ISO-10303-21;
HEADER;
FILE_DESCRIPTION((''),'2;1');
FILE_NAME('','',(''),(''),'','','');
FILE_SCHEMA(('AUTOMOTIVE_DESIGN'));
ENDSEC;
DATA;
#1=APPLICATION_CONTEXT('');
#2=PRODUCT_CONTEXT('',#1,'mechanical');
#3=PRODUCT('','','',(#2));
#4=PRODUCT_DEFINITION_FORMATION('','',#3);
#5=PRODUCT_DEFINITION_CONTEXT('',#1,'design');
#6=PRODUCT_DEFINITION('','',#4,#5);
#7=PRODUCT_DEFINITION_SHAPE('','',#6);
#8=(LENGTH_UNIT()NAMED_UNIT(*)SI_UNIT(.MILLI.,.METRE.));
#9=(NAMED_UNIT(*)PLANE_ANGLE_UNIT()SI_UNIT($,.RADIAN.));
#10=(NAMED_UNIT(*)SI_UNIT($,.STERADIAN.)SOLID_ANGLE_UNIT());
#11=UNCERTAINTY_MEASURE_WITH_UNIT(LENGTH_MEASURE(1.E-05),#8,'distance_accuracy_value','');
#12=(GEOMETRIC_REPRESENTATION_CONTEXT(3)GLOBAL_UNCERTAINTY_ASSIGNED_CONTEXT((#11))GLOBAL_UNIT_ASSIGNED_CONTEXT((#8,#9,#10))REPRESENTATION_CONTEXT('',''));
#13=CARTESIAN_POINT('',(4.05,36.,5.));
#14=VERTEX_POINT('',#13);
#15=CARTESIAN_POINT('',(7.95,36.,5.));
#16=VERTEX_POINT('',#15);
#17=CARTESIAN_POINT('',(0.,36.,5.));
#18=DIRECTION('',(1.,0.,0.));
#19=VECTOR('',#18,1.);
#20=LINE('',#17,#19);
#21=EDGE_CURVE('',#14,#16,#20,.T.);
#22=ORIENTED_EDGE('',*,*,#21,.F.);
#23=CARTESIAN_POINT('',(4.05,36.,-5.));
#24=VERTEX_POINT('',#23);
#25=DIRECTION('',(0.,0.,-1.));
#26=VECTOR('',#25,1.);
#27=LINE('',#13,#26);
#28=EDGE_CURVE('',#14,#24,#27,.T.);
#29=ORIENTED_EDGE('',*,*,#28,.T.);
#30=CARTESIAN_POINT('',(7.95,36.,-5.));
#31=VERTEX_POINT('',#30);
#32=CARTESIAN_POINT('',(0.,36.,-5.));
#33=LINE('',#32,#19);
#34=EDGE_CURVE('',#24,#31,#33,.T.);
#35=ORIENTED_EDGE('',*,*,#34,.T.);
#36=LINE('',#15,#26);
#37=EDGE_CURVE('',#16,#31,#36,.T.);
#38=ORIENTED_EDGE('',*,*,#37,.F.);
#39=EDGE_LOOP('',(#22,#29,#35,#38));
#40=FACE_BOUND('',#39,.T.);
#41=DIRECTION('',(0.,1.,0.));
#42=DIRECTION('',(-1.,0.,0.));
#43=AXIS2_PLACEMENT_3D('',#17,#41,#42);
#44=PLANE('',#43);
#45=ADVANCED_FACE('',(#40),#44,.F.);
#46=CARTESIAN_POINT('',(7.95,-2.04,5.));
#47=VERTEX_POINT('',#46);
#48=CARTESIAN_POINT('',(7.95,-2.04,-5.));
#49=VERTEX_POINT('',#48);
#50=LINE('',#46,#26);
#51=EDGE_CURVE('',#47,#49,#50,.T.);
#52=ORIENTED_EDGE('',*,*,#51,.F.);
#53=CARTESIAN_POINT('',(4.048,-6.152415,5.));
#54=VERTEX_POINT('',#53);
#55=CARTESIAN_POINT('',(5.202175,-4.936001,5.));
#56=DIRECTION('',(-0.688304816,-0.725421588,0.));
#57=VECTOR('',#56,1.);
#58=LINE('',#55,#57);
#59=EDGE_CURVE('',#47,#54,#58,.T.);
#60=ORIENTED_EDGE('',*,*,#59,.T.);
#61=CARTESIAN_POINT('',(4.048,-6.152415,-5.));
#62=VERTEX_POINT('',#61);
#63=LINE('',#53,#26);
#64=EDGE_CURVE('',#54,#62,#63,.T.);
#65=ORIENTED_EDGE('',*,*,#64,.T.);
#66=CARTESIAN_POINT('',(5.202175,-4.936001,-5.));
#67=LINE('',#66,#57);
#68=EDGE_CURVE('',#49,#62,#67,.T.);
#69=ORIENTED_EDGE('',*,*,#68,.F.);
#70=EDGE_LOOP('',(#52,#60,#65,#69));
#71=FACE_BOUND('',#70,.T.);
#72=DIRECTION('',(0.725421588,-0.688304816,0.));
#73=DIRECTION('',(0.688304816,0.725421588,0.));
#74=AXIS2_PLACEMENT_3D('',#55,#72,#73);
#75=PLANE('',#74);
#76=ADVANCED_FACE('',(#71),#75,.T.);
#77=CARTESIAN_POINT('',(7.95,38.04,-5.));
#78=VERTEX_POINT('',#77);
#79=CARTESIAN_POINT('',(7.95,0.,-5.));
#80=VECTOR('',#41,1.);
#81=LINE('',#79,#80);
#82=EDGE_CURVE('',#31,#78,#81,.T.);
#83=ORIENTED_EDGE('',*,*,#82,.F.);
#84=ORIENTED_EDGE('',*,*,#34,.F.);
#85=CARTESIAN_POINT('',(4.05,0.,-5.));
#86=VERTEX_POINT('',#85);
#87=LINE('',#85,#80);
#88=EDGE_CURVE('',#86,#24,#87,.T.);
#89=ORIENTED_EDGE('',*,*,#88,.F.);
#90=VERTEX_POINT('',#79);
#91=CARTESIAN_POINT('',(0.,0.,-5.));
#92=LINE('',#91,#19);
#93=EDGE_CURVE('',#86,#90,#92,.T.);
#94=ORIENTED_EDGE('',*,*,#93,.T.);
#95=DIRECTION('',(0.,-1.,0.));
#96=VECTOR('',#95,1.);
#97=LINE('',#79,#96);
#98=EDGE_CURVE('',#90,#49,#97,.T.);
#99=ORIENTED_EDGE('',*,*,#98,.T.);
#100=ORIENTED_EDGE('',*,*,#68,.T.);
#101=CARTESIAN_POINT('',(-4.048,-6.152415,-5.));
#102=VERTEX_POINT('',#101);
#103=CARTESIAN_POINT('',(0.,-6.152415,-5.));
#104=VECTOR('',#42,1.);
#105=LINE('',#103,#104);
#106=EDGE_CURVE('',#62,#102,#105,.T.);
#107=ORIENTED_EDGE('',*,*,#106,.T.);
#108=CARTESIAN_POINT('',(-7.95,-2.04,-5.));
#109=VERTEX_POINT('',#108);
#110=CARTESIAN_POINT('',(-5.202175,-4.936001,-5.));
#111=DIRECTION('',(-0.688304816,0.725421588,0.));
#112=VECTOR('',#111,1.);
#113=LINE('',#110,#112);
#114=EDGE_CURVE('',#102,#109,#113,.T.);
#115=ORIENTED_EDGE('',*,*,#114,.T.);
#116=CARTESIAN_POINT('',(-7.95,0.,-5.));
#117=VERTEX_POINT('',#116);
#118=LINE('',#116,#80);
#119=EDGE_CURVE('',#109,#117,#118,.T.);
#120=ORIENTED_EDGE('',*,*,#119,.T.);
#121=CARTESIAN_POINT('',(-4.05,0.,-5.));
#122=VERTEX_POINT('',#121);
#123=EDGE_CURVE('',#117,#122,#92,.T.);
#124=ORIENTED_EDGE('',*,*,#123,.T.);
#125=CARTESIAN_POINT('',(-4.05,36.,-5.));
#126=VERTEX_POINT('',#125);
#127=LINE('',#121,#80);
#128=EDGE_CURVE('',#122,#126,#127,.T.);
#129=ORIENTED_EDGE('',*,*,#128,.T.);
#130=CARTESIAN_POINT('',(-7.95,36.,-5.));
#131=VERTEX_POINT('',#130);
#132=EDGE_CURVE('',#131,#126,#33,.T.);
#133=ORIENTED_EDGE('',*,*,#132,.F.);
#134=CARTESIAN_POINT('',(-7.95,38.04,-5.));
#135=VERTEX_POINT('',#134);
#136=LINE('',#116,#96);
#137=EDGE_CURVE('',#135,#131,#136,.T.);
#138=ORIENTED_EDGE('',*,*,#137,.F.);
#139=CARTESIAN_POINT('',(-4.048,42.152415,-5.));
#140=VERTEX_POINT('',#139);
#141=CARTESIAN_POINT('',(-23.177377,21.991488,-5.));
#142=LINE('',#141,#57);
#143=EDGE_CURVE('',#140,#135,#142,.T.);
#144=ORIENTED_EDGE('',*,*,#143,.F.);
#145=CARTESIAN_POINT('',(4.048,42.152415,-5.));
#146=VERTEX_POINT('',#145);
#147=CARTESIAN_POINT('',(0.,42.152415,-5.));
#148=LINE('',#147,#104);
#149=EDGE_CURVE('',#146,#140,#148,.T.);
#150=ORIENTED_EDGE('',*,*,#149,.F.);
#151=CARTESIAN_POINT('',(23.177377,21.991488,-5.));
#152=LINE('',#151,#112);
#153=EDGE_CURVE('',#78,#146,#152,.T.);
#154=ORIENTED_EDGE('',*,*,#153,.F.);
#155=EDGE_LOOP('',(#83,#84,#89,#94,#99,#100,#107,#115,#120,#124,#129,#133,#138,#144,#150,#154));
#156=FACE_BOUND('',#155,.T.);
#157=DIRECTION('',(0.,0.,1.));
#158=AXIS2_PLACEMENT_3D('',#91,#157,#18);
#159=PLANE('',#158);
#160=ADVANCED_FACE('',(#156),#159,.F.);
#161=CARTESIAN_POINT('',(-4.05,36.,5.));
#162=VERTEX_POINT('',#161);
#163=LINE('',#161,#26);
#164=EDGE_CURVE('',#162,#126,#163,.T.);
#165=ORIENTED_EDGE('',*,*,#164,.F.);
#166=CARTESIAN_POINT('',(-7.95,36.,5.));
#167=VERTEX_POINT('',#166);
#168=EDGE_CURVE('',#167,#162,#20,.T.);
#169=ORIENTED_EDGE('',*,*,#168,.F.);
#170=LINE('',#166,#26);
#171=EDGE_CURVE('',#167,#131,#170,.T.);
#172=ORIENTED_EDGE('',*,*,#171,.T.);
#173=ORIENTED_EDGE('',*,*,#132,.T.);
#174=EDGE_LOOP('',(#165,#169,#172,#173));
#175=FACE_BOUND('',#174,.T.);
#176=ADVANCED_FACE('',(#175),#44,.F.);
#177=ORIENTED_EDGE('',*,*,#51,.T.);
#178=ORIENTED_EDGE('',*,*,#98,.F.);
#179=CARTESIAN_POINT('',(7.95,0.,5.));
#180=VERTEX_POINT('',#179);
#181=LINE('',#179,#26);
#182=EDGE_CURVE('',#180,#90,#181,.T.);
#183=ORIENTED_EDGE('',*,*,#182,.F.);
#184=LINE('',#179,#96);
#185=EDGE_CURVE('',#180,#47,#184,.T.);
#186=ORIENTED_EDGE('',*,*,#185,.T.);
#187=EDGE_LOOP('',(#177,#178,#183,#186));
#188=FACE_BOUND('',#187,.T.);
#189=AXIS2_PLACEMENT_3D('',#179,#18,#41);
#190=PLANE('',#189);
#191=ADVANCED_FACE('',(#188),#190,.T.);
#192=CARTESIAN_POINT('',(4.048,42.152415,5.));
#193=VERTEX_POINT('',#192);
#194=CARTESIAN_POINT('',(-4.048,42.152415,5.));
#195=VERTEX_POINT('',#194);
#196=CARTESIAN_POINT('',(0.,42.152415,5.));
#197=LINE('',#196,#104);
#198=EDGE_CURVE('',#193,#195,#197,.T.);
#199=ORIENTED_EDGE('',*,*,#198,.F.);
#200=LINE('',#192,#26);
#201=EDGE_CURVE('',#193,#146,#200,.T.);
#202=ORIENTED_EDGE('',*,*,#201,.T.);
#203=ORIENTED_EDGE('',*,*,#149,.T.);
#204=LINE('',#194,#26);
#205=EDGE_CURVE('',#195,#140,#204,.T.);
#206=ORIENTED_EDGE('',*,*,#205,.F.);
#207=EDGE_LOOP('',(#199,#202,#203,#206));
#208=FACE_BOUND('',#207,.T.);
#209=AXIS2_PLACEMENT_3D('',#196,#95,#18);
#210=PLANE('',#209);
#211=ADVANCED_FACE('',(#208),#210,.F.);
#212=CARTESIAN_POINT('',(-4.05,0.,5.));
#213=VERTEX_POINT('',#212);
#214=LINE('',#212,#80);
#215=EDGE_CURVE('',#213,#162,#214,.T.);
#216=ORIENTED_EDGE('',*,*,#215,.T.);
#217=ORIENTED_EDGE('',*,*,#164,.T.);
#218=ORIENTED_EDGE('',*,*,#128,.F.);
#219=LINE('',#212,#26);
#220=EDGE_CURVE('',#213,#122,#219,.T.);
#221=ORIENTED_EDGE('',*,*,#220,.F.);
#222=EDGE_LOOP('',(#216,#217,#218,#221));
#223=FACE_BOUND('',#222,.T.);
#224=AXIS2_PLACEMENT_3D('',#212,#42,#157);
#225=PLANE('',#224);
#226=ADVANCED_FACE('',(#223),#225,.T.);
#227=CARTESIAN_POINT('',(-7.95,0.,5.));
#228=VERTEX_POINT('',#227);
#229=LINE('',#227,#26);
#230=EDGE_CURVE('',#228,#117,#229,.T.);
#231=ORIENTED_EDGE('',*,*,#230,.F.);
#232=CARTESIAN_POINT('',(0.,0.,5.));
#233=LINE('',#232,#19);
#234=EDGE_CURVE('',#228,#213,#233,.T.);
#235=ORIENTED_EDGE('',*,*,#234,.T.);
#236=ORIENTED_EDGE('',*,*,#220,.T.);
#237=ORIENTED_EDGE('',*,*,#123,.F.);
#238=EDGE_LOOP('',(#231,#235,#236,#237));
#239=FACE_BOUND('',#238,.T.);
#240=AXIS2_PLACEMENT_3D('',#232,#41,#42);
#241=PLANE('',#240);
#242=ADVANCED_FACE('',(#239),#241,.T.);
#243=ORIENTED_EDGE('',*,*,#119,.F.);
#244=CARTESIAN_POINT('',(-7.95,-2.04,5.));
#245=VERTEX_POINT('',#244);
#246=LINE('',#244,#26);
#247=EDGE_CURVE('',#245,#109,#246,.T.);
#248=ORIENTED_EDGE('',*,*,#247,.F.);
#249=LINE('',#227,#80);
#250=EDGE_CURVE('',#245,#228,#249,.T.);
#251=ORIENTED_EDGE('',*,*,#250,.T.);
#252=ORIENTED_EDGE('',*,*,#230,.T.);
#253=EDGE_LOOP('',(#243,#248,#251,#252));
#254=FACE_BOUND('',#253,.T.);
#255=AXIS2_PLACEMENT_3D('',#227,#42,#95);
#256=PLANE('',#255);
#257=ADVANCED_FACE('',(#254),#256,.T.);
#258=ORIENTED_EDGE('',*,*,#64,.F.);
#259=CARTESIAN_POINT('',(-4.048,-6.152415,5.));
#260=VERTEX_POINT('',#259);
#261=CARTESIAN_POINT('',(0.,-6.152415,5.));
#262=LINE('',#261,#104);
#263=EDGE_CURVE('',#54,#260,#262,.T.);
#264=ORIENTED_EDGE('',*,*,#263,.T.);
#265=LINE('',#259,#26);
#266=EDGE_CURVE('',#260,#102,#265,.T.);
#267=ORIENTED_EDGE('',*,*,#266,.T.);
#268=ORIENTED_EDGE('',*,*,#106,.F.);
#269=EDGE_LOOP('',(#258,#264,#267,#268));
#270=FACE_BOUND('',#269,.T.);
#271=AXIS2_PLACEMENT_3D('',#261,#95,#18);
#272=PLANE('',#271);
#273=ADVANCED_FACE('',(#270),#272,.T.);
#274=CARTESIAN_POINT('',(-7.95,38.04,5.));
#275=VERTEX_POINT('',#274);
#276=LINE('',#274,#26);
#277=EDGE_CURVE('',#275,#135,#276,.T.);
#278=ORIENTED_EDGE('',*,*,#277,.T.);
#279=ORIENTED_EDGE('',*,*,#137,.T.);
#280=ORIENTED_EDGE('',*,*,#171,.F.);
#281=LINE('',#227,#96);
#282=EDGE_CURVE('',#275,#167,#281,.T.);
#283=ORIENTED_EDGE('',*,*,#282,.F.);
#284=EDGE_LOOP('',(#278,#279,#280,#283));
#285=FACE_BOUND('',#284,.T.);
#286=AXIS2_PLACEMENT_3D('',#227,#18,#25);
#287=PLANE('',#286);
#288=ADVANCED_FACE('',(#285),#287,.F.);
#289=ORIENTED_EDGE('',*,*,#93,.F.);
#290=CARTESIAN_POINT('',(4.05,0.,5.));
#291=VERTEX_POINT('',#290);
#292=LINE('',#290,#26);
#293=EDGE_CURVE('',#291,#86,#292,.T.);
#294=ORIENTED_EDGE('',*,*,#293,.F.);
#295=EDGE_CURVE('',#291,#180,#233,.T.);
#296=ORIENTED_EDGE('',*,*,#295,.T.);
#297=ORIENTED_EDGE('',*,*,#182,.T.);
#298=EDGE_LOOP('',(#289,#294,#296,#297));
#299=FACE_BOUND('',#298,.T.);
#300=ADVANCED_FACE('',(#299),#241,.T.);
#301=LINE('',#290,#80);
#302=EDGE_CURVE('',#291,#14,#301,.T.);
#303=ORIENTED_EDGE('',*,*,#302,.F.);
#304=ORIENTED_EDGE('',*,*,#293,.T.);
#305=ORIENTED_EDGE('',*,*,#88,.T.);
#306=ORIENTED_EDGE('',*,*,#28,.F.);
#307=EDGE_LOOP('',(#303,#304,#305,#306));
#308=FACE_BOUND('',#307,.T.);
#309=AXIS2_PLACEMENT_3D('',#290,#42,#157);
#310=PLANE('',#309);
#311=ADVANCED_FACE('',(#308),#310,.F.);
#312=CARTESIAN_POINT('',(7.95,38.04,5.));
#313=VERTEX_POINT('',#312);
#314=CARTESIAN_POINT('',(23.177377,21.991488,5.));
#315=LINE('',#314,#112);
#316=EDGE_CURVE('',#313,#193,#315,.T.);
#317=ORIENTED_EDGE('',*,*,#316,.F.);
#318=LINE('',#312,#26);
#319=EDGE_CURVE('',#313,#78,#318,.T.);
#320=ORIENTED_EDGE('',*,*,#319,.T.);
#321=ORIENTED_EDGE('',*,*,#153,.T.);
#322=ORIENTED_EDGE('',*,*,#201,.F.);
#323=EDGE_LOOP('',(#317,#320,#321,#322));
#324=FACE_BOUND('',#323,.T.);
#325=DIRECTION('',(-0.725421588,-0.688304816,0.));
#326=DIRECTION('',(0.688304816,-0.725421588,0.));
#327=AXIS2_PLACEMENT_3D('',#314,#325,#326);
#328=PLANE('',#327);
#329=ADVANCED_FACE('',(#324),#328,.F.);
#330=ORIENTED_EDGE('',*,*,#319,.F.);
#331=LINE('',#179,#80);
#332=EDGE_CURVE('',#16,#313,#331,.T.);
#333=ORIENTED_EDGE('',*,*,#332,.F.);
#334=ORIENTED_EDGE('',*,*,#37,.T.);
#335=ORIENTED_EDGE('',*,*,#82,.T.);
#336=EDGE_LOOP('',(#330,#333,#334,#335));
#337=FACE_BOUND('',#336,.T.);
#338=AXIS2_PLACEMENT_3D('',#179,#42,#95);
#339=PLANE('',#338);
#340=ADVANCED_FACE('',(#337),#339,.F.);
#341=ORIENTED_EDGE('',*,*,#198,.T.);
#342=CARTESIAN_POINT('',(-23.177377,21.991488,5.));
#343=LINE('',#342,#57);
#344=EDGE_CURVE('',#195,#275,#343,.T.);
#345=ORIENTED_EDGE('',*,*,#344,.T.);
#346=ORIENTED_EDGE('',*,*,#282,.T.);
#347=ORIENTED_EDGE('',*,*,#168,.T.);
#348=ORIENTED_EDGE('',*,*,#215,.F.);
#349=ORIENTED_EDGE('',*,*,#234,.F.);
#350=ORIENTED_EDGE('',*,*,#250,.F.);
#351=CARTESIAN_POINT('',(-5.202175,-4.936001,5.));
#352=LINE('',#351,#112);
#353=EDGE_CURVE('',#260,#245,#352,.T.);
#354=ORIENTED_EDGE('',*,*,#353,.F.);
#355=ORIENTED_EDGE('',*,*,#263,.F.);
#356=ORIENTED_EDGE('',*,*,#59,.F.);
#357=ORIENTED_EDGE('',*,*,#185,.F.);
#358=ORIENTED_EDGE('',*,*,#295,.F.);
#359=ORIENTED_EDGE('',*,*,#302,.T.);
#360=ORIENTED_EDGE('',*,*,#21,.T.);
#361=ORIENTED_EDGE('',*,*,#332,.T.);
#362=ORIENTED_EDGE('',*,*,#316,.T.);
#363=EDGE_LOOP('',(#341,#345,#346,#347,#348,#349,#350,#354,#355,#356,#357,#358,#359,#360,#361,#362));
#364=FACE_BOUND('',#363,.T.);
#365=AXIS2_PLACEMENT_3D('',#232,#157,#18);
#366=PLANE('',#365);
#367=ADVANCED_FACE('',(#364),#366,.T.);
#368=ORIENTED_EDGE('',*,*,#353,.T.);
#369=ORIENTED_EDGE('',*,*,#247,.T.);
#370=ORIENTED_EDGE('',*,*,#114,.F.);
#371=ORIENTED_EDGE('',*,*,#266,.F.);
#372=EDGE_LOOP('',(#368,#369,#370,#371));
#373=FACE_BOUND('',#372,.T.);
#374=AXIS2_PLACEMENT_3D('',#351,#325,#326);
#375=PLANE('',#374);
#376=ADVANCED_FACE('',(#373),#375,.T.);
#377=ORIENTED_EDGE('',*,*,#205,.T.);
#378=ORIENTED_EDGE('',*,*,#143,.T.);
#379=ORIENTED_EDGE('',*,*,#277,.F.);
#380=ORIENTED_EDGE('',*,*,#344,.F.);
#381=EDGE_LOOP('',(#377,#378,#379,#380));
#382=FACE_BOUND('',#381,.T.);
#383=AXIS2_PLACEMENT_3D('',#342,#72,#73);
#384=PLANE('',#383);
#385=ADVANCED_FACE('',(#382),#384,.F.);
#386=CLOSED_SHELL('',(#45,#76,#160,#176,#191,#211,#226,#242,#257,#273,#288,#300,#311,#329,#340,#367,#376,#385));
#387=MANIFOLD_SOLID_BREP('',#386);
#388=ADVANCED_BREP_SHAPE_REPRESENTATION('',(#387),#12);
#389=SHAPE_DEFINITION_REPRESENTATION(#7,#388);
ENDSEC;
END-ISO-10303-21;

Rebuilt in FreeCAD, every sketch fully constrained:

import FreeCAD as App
import Part
import Sketcher

V = App.Vector
Q = App.Units.Quantity

doc = App.newDocument("Part")
body = doc.addObject("PartDesign::Body", "Body")

# Sketch on XY plane
sketch1 = doc.addObject("Sketcher::SketchObject", "Sketch")
body.addObject(sketch1)
sketch1.AttachmentSupport = (doc.XY_Plane, [""])
sketch1.MapMode = "FlatFace"
sketch1.addGeometry(Part.LineSegment(V(7.95, 0, 0), V(4.05, 0, 0)), False)
sketch1.addGeometry(Part.LineSegment(V(4.05, 0, 0), V(4.05, 36, 0)), False)
sketch1.addGeometry(Part.LineSegment(V(4.05, 36, 0), V(7.95, 36, 0)), False)
sketch1.addGeometry(Part.LineSegment(V(7.95, 36, 0), V(7.95, 38.04, 0)), False)
sketch1.addGeometry(Part.LineSegment(V(7.95, 38.04, 0), V(4.048, 42.152415, 0)), False)
sketch1.addGeometry(Part.LineSegment(V(4.048, 42.152415, 0), V(-4.048, 42.152415, 0)), False)
sketch1.addGeometry(Part.LineSegment(V(-4.048, 42.152415, 0), V(-7.95, 38.04, 0)), False)
sketch1.addGeometry(Part.LineSegment(V(-7.95, 38.04, 0), V(-7.95, 36, 0)), False)
sketch1.addGeometry(Part.LineSegment(V(-7.95, 36, 0), V(-4.05, 36, 0)), False)
sketch1.addGeometry(Part.LineSegment(V(-4.05, 36, 0), V(-4.05, 0, 0)), False)
sketch1.addGeometry(Part.LineSegment(V(-4.05, 0, 0), V(-7.95, 0, 0)), False)
sketch1.addGeometry(Part.LineSegment(V(-7.95, 0, 0), V(-7.95, -2.04, 0)), False)
sketch1.addGeometry(Part.LineSegment(V(-7.95, -2.04, 0), V(-4.048, -6.152415, 0)), False)
sketch1.addGeometry(Part.LineSegment(V(-4.048, -6.152415, 0), V(4.048, -6.152415, 0)), False)
sketch1.addGeometry(Part.LineSegment(V(4.048, -6.152415, 0), V(7.95, -2.04, 0)), False)
sketch1.addGeometry(Part.LineSegment(V(7.95, -2.04, 0), V(7.95, 0, 0)), False)
sketch1.addConstraint(Sketcher.Constraint("Coincident", 0, 2, 1, 1))
sketch1.addConstraint(Sketcher.Constraint("Coincident", 1, 2, 2, 1))
sketch1.addConstraint(Sketcher.Constraint("Coincident", 2, 2, 3, 1))
sketch1.addConstraint(Sketcher.Constraint("Coincident", 3, 2, 4, 1))
sketch1.addConstraint(Sketcher.Constraint("Coincident", 4, 2, 5, 1))
sketch1.addConstraint(Sketcher.Constraint("Coincident", 5, 2, 6, 1))
sketch1.addConstraint(Sketcher.Constraint("Coincident", 6, 2, 7, 1))
sketch1.addConstraint(Sketcher.Constraint("Coincident", 7, 2, 8, 1))
sketch1.addConstraint(Sketcher.Constraint("Coincident", 8, 2, 9, 1))
sketch1.addConstraint(Sketcher.Constraint("Coincident", 9, 2, 10, 1))
sketch1.addConstraint(Sketcher.Constraint("Coincident", 10, 2, 11, 1))
sketch1.addConstraint(Sketcher.Constraint("Coincident", 11, 2, 12, 1))
sketch1.addConstraint(Sketcher.Constraint("Coincident", 12, 2, 13, 1))
sketch1.addConstraint(Sketcher.Constraint("Coincident", 13, 2, 14, 1))
sketch1.addConstraint(Sketcher.Constraint("Coincident", 14, 2, 15, 1))
sketch1.addConstraint(Sketcher.Constraint("Coincident", 15, 2, 0, 1))
sketch1.addConstraint(Sketcher.Constraint("Horizontal", 0))
sketch1.addConstraint(Sketcher.Constraint("Vertical", 1))
sketch1.addConstraint(Sketcher.Constraint("Horizontal", 2))
sketch1.addConstraint(Sketcher.Constraint("Vertical", 3))
sketch1.addConstraint(Sketcher.Constraint("Horizontal", 5))
sketch1.addConstraint(Sketcher.Constraint("Vertical", 7))
sketch1.addConstraint(Sketcher.Constraint("Horizontal", 8))
sketch1.addConstraint(Sketcher.Constraint("Vertical", 9))
sketch1.addConstraint(Sketcher.Constraint("Horizontal", 10))
sketch1.addConstraint(Sketcher.Constraint("Vertical", 11))
sketch1.addConstraint(Sketcher.Constraint("Horizontal", 13))
sketch1.addConstraint(Sketcher.Constraint("Vertical", 15))
sketch1.addConstraint(Sketcher.Constraint("Symmetric", 0, 2, 9, 2, -1, 1))
sketch1.addConstraint(Sketcher.Constraint("Symmetric", 3, 2, 6, 2, -2))
sketch1.addConstraint(Sketcher.Constraint("Symmetric", 11, 2, 14, 2, -2))
sketch1.addConstraint(Sketcher.Constraint("PointOnObject", 0, 2, -1))
sketch1.addConstraint(Sketcher.Constraint("Parallel", 4, 12))
sketch1.addConstraint(Sketcher.Constraint("Parallel", 6, 14))
sketch1.addConstraint(Sketcher.Constraint("Horizontal", 2, 2, 7, 2))
sketch1.addConstraint(Sketcher.Constraint("Vertical", 7, 2, 10, 2))
sketch1.addConstraint(Sketcher.Constraint("Vertical", 5, 2, 12, 2))
sketch1.addConstraint(Sketcher.Constraint("Vertical", 4, 2, 13, 2))
sketch1.addConstraint(Sketcher.Constraint("Equal", 7, 11))
sketch1.addConstraint(Sketcher.Constraint("DistanceY", 1, 1, 1, 2, Q("36 mm")))
sketch1.addConstraint(Sketcher.Constraint("DistanceX", 0, 2, 0, 1, Q("3.9 mm")))
sketch1.addConstraint(Sketcher.Constraint("DistanceX", 6, 2, 1, 2, Q("12 mm")))
sketch1.addConstraint(Sketcher.Constraint("DistanceY", 3, 1, 3, 2, Q("2.04 mm")))
sketch1.addConstraint(Sketcher.Constraint("DistanceX", 5, 2, 5, 1, Q("8.096 mm")))
sketch1.addConstraint(Sketcher.Constraint("Distance", 4, Q("5.669 mm")))
pad1 = doc.addObject("PartDesign::Pad", "Pad")
body.addObject(pad1)
pad1.Profile = sketch1
pad1.Length = 10
pad1.Midplane = True

doc.recompute()
